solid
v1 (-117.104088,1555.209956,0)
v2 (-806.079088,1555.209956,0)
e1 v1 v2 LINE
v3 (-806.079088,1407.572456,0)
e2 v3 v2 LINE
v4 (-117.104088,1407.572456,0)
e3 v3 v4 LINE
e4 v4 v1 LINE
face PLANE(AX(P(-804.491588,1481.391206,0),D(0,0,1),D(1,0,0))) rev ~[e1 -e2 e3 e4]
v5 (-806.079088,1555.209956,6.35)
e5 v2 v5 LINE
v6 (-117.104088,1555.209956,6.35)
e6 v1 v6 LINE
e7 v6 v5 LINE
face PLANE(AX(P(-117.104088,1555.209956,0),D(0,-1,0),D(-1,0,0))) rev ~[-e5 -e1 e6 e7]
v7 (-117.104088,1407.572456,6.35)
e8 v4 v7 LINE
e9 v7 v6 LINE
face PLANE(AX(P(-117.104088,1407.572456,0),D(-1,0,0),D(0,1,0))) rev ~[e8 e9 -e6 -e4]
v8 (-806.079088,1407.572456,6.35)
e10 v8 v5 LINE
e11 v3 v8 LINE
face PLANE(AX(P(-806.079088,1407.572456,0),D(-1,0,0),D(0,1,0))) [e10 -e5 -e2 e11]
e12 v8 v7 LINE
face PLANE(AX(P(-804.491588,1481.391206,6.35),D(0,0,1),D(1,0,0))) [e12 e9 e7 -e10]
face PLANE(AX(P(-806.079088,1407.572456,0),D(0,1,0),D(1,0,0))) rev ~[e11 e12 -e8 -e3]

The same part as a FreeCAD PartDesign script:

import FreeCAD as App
import Part
import Sketcher

V = App.Vector
Q = App.Units.Quantity

doc = App.newDocument("Part")
body = doc.addObject("PartDesign::Body", "Body")

sketch1 = body.newObject("Sketcher::SketchObject", "Sketch")
sketch1.AttachmentSupport = (doc.getObject("XY_Plane"), [""])
sketch1.MapMode = "FlatFace"
sketch1.addGeometry([
    Part.LineSegment(V(-806.079088, 1555.209956, 0), V(-806.079088, 1407.572456, 0)),
    Part.LineSegment(V(-806.079088, 1407.572456, 0), V(-117.104088, 1407.572456, 0)),
    Part.LineSegment(V(-117.104088, 1407.572456, 0), V(-117.104088, 1555.209956, 0)),
    Part.LineSegment(V(-117.104088, 1555.209956, 0), V(-806.079088, 1555.209956, 0)),
], False)
sketch1.addConstraint([
    Sketcher.Constraint("Coincident", 0, 2, 1, 1),
    Sketcher.Constraint("Coincident", 1, 2, 2, 1),
    Sketcher.Constraint("Coincident", 2, 2, 3, 1),
    Sketcher.Constraint("Coincident", 3, 2, 0, 1),
    Sketcher.Constraint("Vertical", 0),
    Sketcher.Constraint("Horizontal", 1),
    Sketcher.Constraint("Vertical", 2),
    Sketcher.Constraint("Horizontal", 3),
    Sketcher.Constraint("DistanceX", 1, 1, 1, 2, Q("27.125 in")),
    Sketcher.Constraint("DistanceY", 0, 2, 0, 1, Q("5.8125 in")),
    Sketcher.Constraint("DistanceX", 0, 2, -1, 1, 806.079088),
    Sketcher.Constraint("DistanceY", -1, 1, 0, 2, 1407.572456),
])
pad1 = body.newObject("PartDesign::Pad", "Pad")
pad1.Profile = sketch1
pad1.Length = Q("0.25 in")

doc.recompute()
